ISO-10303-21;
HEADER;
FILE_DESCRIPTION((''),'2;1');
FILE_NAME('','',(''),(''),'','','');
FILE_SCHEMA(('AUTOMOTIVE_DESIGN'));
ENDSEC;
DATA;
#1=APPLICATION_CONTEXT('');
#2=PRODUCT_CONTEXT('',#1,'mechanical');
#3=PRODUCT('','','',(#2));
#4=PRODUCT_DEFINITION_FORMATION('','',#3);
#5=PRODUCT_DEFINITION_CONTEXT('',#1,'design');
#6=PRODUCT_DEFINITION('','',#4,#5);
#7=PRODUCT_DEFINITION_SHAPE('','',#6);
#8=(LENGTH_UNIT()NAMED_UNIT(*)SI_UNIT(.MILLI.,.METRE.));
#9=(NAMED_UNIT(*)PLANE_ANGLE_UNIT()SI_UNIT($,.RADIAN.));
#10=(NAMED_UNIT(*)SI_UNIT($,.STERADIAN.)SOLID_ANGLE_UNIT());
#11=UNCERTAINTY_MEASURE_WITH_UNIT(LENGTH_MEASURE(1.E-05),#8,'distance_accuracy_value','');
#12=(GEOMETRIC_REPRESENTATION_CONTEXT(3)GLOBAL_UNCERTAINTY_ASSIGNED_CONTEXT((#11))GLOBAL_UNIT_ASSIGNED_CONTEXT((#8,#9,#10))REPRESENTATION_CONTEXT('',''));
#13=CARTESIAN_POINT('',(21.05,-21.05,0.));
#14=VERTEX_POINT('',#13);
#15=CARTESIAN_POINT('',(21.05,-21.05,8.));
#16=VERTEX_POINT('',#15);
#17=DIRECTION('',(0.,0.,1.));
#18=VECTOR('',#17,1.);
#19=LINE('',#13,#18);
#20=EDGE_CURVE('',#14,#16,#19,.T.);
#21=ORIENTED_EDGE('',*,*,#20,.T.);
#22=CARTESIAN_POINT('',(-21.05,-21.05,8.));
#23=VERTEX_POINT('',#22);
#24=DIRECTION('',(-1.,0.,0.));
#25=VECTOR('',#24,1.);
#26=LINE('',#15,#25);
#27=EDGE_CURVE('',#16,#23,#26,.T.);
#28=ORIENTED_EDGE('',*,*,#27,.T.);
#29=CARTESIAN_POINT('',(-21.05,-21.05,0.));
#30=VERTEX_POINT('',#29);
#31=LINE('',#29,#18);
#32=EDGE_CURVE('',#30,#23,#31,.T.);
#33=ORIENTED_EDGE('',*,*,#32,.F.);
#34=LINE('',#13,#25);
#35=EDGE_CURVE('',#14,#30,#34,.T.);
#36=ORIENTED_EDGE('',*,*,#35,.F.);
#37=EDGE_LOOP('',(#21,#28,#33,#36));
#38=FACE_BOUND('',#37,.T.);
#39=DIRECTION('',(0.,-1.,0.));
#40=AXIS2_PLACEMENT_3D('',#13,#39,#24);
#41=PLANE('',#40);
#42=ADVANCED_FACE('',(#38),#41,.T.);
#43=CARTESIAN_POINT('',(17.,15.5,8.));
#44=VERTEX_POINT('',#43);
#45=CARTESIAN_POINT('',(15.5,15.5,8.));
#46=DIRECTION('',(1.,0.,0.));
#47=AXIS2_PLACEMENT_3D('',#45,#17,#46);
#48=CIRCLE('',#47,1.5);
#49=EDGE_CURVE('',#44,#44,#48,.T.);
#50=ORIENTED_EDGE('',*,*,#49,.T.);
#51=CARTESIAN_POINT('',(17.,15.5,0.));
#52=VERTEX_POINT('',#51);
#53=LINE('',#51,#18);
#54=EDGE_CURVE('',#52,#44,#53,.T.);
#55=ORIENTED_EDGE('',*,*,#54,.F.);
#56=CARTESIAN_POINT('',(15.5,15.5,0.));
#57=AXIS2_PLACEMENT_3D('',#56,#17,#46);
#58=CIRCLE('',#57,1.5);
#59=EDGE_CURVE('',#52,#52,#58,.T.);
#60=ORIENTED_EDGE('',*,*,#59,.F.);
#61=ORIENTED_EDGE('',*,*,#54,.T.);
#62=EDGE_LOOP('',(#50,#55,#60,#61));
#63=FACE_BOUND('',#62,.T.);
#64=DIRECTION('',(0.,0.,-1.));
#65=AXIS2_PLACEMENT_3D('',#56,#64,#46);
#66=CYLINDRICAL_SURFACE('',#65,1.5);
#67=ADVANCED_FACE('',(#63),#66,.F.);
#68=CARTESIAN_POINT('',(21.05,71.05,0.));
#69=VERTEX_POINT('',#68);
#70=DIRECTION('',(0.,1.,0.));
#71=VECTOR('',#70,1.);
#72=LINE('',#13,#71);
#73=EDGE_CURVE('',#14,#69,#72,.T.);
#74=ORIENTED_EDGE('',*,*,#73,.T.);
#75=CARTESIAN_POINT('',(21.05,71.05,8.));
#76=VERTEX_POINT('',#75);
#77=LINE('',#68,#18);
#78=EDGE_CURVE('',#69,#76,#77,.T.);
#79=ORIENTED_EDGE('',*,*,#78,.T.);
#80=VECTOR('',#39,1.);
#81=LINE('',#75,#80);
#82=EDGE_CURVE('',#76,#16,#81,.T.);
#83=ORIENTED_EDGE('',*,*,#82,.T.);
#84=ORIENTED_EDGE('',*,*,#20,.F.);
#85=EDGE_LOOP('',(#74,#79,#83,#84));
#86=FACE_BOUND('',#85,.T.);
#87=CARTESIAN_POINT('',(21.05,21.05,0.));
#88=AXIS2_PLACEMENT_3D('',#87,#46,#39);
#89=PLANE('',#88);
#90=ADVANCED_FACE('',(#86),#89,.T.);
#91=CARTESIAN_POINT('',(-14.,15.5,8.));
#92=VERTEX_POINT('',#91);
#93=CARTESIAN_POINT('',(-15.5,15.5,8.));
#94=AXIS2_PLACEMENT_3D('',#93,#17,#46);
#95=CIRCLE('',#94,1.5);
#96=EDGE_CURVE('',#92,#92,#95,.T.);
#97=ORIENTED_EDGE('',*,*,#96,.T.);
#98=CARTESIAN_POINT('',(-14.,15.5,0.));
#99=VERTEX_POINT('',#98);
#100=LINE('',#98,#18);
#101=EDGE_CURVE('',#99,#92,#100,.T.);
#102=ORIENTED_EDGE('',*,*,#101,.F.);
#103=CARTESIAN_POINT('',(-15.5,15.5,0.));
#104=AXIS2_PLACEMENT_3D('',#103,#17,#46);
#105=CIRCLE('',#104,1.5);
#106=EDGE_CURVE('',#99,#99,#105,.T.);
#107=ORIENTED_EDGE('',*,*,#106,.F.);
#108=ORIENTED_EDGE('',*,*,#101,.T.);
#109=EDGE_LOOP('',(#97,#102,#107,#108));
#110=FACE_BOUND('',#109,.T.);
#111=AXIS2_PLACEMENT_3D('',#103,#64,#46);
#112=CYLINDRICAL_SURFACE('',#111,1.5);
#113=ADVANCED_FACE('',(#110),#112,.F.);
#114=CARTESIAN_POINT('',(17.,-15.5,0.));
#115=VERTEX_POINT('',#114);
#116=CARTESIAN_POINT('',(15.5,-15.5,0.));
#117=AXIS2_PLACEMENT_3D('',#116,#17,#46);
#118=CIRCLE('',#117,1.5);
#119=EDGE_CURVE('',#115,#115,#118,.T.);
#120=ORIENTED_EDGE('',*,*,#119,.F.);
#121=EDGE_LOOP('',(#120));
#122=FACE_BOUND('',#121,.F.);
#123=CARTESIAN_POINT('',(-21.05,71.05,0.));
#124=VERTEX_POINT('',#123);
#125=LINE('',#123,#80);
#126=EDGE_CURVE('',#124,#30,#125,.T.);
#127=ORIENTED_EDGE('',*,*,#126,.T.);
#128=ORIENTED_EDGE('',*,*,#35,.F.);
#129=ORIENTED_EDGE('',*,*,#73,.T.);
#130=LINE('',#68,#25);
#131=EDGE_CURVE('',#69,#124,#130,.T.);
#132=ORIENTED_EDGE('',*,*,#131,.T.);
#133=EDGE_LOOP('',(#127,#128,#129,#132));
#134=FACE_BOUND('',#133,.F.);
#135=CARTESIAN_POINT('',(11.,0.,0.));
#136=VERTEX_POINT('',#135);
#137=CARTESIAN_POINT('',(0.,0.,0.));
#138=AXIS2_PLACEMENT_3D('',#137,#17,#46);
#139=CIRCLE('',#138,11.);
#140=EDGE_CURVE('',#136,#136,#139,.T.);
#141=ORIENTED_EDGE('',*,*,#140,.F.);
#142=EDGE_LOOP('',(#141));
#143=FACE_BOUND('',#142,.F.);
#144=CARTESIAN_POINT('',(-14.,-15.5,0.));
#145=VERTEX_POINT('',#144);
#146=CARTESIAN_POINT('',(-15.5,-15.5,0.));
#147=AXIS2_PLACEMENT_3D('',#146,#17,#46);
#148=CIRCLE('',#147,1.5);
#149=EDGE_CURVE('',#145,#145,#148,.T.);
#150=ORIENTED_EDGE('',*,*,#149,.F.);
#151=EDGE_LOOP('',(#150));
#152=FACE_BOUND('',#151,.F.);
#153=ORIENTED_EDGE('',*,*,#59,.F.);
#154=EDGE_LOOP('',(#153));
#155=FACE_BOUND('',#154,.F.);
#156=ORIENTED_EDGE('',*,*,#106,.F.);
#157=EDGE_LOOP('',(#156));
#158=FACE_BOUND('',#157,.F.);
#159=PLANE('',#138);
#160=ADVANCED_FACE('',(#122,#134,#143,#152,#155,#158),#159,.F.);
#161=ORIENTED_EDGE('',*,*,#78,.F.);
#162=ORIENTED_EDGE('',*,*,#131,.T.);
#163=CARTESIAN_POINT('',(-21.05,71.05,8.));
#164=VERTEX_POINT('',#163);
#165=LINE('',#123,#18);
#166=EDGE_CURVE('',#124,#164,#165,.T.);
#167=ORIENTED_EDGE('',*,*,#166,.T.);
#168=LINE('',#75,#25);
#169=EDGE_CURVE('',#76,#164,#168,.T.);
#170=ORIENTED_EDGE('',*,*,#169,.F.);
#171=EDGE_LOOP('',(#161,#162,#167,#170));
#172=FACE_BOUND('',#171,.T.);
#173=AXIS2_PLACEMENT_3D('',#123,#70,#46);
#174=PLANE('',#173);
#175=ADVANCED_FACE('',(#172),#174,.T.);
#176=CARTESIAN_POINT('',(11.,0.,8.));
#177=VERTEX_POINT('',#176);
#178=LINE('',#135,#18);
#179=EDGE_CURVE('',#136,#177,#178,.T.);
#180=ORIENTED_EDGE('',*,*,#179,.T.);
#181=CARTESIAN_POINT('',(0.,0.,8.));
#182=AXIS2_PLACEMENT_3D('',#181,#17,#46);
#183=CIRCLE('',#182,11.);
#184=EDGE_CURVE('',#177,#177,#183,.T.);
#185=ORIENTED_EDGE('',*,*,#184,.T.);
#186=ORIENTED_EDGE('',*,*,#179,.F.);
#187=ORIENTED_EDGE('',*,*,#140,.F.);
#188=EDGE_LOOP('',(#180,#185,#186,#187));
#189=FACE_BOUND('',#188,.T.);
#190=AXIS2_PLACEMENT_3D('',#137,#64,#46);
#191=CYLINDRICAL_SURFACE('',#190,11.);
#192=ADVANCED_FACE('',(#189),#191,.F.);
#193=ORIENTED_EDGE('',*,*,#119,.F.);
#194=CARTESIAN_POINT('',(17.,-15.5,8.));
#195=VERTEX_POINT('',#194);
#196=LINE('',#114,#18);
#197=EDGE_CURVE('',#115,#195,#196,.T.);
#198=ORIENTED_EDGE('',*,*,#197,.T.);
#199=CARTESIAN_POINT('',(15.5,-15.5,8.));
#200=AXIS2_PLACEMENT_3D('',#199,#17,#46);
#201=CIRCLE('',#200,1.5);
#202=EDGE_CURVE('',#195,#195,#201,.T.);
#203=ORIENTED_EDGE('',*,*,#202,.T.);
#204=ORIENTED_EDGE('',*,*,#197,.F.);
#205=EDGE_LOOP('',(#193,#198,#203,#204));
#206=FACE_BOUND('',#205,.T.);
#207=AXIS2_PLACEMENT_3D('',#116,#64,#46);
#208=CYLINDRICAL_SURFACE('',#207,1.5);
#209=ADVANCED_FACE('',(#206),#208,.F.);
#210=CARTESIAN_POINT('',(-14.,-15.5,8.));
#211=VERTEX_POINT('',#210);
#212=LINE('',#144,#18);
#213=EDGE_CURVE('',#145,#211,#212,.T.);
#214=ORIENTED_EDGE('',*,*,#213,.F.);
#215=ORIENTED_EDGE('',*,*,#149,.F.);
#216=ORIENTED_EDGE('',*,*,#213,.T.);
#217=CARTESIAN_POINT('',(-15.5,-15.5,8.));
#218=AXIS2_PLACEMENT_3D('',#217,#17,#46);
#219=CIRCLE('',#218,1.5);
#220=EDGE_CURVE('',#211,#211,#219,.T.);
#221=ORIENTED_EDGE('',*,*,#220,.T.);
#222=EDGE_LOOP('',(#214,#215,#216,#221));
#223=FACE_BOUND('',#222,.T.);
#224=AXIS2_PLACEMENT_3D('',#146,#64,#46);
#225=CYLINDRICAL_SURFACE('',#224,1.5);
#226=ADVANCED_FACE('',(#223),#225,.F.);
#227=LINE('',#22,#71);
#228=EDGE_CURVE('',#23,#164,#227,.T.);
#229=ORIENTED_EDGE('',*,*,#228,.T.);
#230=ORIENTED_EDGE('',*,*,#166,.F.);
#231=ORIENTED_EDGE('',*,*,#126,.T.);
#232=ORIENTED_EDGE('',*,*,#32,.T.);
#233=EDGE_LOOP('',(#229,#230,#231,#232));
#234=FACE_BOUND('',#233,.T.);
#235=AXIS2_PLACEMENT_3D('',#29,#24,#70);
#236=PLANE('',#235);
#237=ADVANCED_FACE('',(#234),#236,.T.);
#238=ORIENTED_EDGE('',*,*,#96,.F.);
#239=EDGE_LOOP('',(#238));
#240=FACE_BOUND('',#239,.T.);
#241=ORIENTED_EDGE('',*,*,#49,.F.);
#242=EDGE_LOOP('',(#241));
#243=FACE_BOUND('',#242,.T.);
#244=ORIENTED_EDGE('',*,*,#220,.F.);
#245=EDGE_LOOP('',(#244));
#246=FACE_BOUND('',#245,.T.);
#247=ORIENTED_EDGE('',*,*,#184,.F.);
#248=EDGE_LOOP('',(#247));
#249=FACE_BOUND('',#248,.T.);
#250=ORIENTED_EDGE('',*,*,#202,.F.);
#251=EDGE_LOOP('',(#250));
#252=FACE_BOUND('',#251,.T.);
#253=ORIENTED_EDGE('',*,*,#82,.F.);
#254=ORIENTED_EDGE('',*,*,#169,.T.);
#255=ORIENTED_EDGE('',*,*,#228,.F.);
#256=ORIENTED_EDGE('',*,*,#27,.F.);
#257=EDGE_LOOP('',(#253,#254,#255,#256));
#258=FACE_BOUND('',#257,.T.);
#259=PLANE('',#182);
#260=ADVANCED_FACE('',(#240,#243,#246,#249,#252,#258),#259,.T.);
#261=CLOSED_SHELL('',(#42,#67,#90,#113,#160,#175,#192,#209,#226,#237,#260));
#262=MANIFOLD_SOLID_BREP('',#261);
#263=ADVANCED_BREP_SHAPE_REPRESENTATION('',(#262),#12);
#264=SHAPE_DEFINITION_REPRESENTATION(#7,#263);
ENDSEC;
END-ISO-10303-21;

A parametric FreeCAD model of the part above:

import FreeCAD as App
import Part
import Sketcher
Q = App.Units.Quantity


def add_polygon(sketch, points):
    """Adds a closed chain of lines whose ends are joined by coincident constraints."""
    first, n = sketch.GeometryCount, len(points)
    for a, b in zip(points, points[1:] + points[:1]):
        sketch.addGeometry(Part.LineSegment(App.Vector(*a, 0), App.Vector(*b, 0)), False)
    for i in range(n):
        sketch.addConstraint(Sketcher.Constraint("Coincident", first + i, 2, first + (i + 1) % n, 1))

doc = App.newDocument("Part")
body = doc.addObject("PartDesign::Body", "Body")

sketch1 = body.newObject("Sketcher::SketchObject", "Sketch")
sketch1.AttachmentSupport = (doc.getObject("XY_Plane"), [""])
sketch1.MapMode = "FlatFace"
add_polygon(sketch1, [(-21.1, -21.1), (21.1, -21.1), (21.1, 21.1), (-21.1, 21.1)])
sketch1.addGeometry(Part.Circle(App.Vector(-15.5, -15.5, 0), App.Vector(0, 0, 1), 1.5), False)
sketch1.addGeometry(Part.Circle(App.Vector(15.5, -15.5, 0), App.Vector(0, 0, 1), 1.5), False)
sketch1.addGeometry(Part.Circle(App.Vector(-15.5, 15.5, 0), App.Vector(0, 0, 1), 1.5), False)
sketch1.addGeometry(Part.Circle(App.Vector(0, 0, 0), App.Vector(0, 0, 1), 11), False)
sketch1.addGeometry(Part.Circle(App.Vector(15.5, 15.5, 0), App.Vector(0, 0, 1), 1.5), False)
sketch1.addConstraint([
    Sketcher.Constraint("Horizontal", 0),
    Sketcher.Constraint("Vertical", 1),
    Sketcher.Constraint("Horizontal", 2),
    Sketcher.Constraint("Vertical", 3),
    Sketcher.Constraint("Coincident", 7, 3, -1, 1),
    Sketcher.Constraint("Equal", 4, 5),
    Sketcher.Constraint("Equal", 5, 6),
    Sketcher.Constraint("Equal", 6, 8),
    Sketcher.Constraint("Symmetric", 5, 3, 6, 3, -1, 1),
    Sketcher.Constraint("Symmetric", 4, 3, 8, 3, -1, 1),
    Sketcher.Constraint("Symmetric", 0, 2, 2, 2, -1, 1),
    Sketcher.Constraint("Symmetric", 4, 3, 5, 3, -2),
    Sketcher.Constraint("Equal", 2, 1),
    Sketcher.Constraint("Diameter", 4, Q("3 mm")),
    Sketcher.Constraint("Diameter", 7, Q("22 mm")),
    Sketcher.Constraint("DistanceX", 0, 1, 0, 2, Q("42.1 mm")),
    Sketcher.Constraint("DistanceX", 4, 3, 5, 3, Q("31 mm")),
    Sketcher.Constraint("DistanceY", 4, 3, 6, 3, Q("31 mm")),
])
pad1 = body.newObject("PartDesign::Pad", "Pad")
pad1.Profile = sketch1
pad1.Length = 8

sketch2 = body.newObject("Sketcher::SketchObject", "Sketch001")
sketch2.AttachmentSupport = (doc.getObject("XZ_Plane"), [""])
sketch2.MapMode = "FlatFace"
sketch2.AttachmentOffset = App.Placement(App.Vector(0, 0, -21.05), App.Rotation())
add_polygon(sketch2, [(21, 8), (21, 0), (-21, 0), (-21, 8)])
sketch2.addConstraint([
    Sketcher.Constraint("Vertical", 0),
    Sketcher.Constraint("Horizontal", 1),
    Sketcher.Constraint("Vertical", 2),
    Sketcher.Constraint("Horizontal", 3),
    Sketcher.Constraint("Symmetric", 0, 2, 1, 2, -1, 1),
    Sketcher.Constraint("DistanceY", 0, 2, 0, 1, Q("8 mm")),
    Sketcher.Constraint("DistanceX", 1, 2, 1, 1, Q("42.1 mm")),
])
pad2 = body.newObject("PartDesign::Pad", "Pad001")
pad2.Profile = sketch2
pad2.Length = 50
pad2.Reversed = True

doc.recompute()
